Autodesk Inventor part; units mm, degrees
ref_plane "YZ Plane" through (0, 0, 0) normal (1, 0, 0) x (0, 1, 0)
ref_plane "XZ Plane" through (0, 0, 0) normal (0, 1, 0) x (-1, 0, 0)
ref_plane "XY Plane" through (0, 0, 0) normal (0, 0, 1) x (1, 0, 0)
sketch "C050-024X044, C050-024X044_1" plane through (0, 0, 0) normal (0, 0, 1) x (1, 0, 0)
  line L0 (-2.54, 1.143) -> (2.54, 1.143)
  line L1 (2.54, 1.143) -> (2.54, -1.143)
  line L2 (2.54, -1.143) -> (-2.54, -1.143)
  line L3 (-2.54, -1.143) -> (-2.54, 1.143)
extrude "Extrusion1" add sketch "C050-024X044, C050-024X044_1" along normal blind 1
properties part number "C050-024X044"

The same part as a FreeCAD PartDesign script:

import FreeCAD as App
import Part
import Sketcher

V = App.Vector
Q = App.Units.Quantity


def add_polygon(sketch, points):
    """Adds a closed chain of lines whose ends are joined by coincident constraints."""
    first, n = sketch.GeometryCount, len(points)
    for a, b in zip(points, points[1:] + points[:1]):
        sketch.addGeometry(Part.LineSegment(App.Vector(*a, 0), App.Vector(*b, 0)), False)
    for i in range(n):
        sketch.addConstraint(Sketcher.Constraint("Coincident", first + i, 2, first + (i + 1) % n, 1))

doc = App.newDocument("Part")
body = doc.addObject("PartDesign::Body", "Body")

sketch1 = body.newObject("Sketcher::SketchObject", "Sketch")
sketch1.AttachmentSupport = (doc.getObject("XY_Plane"), [""])
sketch1.MapMode = "FlatFace"
add_polygon(sketch1, [(2.54, 1.143), (-2.54, 1.143), (-2.54, -1.143), (2.54, -1.143)])
sketch1.addConstraint([
    Sketcher.Constraint("Horizontal", 0),
    Sketcher.Constraint("Vertical", 1),
    Sketcher.Constraint("Horizontal", 2),
    Sketcher.Constraint("Vertical", 3),
    Sketcher.Constraint("Symmetric", 0, 2, 2, 2, -1, 1),
    Sketcher.Constraint("DistanceX", 0, 2, 0, 1, Q("0.2 in")),
    Sketcher.Constraint("DistanceY", 1, 2, 1, 1, Q("0.09 in")),
])
pad1 = body.newObject("PartDesign::Pad", "Pad")
pad1.Profile = sketch1
pad1.Length = 1

doc.recompute()
